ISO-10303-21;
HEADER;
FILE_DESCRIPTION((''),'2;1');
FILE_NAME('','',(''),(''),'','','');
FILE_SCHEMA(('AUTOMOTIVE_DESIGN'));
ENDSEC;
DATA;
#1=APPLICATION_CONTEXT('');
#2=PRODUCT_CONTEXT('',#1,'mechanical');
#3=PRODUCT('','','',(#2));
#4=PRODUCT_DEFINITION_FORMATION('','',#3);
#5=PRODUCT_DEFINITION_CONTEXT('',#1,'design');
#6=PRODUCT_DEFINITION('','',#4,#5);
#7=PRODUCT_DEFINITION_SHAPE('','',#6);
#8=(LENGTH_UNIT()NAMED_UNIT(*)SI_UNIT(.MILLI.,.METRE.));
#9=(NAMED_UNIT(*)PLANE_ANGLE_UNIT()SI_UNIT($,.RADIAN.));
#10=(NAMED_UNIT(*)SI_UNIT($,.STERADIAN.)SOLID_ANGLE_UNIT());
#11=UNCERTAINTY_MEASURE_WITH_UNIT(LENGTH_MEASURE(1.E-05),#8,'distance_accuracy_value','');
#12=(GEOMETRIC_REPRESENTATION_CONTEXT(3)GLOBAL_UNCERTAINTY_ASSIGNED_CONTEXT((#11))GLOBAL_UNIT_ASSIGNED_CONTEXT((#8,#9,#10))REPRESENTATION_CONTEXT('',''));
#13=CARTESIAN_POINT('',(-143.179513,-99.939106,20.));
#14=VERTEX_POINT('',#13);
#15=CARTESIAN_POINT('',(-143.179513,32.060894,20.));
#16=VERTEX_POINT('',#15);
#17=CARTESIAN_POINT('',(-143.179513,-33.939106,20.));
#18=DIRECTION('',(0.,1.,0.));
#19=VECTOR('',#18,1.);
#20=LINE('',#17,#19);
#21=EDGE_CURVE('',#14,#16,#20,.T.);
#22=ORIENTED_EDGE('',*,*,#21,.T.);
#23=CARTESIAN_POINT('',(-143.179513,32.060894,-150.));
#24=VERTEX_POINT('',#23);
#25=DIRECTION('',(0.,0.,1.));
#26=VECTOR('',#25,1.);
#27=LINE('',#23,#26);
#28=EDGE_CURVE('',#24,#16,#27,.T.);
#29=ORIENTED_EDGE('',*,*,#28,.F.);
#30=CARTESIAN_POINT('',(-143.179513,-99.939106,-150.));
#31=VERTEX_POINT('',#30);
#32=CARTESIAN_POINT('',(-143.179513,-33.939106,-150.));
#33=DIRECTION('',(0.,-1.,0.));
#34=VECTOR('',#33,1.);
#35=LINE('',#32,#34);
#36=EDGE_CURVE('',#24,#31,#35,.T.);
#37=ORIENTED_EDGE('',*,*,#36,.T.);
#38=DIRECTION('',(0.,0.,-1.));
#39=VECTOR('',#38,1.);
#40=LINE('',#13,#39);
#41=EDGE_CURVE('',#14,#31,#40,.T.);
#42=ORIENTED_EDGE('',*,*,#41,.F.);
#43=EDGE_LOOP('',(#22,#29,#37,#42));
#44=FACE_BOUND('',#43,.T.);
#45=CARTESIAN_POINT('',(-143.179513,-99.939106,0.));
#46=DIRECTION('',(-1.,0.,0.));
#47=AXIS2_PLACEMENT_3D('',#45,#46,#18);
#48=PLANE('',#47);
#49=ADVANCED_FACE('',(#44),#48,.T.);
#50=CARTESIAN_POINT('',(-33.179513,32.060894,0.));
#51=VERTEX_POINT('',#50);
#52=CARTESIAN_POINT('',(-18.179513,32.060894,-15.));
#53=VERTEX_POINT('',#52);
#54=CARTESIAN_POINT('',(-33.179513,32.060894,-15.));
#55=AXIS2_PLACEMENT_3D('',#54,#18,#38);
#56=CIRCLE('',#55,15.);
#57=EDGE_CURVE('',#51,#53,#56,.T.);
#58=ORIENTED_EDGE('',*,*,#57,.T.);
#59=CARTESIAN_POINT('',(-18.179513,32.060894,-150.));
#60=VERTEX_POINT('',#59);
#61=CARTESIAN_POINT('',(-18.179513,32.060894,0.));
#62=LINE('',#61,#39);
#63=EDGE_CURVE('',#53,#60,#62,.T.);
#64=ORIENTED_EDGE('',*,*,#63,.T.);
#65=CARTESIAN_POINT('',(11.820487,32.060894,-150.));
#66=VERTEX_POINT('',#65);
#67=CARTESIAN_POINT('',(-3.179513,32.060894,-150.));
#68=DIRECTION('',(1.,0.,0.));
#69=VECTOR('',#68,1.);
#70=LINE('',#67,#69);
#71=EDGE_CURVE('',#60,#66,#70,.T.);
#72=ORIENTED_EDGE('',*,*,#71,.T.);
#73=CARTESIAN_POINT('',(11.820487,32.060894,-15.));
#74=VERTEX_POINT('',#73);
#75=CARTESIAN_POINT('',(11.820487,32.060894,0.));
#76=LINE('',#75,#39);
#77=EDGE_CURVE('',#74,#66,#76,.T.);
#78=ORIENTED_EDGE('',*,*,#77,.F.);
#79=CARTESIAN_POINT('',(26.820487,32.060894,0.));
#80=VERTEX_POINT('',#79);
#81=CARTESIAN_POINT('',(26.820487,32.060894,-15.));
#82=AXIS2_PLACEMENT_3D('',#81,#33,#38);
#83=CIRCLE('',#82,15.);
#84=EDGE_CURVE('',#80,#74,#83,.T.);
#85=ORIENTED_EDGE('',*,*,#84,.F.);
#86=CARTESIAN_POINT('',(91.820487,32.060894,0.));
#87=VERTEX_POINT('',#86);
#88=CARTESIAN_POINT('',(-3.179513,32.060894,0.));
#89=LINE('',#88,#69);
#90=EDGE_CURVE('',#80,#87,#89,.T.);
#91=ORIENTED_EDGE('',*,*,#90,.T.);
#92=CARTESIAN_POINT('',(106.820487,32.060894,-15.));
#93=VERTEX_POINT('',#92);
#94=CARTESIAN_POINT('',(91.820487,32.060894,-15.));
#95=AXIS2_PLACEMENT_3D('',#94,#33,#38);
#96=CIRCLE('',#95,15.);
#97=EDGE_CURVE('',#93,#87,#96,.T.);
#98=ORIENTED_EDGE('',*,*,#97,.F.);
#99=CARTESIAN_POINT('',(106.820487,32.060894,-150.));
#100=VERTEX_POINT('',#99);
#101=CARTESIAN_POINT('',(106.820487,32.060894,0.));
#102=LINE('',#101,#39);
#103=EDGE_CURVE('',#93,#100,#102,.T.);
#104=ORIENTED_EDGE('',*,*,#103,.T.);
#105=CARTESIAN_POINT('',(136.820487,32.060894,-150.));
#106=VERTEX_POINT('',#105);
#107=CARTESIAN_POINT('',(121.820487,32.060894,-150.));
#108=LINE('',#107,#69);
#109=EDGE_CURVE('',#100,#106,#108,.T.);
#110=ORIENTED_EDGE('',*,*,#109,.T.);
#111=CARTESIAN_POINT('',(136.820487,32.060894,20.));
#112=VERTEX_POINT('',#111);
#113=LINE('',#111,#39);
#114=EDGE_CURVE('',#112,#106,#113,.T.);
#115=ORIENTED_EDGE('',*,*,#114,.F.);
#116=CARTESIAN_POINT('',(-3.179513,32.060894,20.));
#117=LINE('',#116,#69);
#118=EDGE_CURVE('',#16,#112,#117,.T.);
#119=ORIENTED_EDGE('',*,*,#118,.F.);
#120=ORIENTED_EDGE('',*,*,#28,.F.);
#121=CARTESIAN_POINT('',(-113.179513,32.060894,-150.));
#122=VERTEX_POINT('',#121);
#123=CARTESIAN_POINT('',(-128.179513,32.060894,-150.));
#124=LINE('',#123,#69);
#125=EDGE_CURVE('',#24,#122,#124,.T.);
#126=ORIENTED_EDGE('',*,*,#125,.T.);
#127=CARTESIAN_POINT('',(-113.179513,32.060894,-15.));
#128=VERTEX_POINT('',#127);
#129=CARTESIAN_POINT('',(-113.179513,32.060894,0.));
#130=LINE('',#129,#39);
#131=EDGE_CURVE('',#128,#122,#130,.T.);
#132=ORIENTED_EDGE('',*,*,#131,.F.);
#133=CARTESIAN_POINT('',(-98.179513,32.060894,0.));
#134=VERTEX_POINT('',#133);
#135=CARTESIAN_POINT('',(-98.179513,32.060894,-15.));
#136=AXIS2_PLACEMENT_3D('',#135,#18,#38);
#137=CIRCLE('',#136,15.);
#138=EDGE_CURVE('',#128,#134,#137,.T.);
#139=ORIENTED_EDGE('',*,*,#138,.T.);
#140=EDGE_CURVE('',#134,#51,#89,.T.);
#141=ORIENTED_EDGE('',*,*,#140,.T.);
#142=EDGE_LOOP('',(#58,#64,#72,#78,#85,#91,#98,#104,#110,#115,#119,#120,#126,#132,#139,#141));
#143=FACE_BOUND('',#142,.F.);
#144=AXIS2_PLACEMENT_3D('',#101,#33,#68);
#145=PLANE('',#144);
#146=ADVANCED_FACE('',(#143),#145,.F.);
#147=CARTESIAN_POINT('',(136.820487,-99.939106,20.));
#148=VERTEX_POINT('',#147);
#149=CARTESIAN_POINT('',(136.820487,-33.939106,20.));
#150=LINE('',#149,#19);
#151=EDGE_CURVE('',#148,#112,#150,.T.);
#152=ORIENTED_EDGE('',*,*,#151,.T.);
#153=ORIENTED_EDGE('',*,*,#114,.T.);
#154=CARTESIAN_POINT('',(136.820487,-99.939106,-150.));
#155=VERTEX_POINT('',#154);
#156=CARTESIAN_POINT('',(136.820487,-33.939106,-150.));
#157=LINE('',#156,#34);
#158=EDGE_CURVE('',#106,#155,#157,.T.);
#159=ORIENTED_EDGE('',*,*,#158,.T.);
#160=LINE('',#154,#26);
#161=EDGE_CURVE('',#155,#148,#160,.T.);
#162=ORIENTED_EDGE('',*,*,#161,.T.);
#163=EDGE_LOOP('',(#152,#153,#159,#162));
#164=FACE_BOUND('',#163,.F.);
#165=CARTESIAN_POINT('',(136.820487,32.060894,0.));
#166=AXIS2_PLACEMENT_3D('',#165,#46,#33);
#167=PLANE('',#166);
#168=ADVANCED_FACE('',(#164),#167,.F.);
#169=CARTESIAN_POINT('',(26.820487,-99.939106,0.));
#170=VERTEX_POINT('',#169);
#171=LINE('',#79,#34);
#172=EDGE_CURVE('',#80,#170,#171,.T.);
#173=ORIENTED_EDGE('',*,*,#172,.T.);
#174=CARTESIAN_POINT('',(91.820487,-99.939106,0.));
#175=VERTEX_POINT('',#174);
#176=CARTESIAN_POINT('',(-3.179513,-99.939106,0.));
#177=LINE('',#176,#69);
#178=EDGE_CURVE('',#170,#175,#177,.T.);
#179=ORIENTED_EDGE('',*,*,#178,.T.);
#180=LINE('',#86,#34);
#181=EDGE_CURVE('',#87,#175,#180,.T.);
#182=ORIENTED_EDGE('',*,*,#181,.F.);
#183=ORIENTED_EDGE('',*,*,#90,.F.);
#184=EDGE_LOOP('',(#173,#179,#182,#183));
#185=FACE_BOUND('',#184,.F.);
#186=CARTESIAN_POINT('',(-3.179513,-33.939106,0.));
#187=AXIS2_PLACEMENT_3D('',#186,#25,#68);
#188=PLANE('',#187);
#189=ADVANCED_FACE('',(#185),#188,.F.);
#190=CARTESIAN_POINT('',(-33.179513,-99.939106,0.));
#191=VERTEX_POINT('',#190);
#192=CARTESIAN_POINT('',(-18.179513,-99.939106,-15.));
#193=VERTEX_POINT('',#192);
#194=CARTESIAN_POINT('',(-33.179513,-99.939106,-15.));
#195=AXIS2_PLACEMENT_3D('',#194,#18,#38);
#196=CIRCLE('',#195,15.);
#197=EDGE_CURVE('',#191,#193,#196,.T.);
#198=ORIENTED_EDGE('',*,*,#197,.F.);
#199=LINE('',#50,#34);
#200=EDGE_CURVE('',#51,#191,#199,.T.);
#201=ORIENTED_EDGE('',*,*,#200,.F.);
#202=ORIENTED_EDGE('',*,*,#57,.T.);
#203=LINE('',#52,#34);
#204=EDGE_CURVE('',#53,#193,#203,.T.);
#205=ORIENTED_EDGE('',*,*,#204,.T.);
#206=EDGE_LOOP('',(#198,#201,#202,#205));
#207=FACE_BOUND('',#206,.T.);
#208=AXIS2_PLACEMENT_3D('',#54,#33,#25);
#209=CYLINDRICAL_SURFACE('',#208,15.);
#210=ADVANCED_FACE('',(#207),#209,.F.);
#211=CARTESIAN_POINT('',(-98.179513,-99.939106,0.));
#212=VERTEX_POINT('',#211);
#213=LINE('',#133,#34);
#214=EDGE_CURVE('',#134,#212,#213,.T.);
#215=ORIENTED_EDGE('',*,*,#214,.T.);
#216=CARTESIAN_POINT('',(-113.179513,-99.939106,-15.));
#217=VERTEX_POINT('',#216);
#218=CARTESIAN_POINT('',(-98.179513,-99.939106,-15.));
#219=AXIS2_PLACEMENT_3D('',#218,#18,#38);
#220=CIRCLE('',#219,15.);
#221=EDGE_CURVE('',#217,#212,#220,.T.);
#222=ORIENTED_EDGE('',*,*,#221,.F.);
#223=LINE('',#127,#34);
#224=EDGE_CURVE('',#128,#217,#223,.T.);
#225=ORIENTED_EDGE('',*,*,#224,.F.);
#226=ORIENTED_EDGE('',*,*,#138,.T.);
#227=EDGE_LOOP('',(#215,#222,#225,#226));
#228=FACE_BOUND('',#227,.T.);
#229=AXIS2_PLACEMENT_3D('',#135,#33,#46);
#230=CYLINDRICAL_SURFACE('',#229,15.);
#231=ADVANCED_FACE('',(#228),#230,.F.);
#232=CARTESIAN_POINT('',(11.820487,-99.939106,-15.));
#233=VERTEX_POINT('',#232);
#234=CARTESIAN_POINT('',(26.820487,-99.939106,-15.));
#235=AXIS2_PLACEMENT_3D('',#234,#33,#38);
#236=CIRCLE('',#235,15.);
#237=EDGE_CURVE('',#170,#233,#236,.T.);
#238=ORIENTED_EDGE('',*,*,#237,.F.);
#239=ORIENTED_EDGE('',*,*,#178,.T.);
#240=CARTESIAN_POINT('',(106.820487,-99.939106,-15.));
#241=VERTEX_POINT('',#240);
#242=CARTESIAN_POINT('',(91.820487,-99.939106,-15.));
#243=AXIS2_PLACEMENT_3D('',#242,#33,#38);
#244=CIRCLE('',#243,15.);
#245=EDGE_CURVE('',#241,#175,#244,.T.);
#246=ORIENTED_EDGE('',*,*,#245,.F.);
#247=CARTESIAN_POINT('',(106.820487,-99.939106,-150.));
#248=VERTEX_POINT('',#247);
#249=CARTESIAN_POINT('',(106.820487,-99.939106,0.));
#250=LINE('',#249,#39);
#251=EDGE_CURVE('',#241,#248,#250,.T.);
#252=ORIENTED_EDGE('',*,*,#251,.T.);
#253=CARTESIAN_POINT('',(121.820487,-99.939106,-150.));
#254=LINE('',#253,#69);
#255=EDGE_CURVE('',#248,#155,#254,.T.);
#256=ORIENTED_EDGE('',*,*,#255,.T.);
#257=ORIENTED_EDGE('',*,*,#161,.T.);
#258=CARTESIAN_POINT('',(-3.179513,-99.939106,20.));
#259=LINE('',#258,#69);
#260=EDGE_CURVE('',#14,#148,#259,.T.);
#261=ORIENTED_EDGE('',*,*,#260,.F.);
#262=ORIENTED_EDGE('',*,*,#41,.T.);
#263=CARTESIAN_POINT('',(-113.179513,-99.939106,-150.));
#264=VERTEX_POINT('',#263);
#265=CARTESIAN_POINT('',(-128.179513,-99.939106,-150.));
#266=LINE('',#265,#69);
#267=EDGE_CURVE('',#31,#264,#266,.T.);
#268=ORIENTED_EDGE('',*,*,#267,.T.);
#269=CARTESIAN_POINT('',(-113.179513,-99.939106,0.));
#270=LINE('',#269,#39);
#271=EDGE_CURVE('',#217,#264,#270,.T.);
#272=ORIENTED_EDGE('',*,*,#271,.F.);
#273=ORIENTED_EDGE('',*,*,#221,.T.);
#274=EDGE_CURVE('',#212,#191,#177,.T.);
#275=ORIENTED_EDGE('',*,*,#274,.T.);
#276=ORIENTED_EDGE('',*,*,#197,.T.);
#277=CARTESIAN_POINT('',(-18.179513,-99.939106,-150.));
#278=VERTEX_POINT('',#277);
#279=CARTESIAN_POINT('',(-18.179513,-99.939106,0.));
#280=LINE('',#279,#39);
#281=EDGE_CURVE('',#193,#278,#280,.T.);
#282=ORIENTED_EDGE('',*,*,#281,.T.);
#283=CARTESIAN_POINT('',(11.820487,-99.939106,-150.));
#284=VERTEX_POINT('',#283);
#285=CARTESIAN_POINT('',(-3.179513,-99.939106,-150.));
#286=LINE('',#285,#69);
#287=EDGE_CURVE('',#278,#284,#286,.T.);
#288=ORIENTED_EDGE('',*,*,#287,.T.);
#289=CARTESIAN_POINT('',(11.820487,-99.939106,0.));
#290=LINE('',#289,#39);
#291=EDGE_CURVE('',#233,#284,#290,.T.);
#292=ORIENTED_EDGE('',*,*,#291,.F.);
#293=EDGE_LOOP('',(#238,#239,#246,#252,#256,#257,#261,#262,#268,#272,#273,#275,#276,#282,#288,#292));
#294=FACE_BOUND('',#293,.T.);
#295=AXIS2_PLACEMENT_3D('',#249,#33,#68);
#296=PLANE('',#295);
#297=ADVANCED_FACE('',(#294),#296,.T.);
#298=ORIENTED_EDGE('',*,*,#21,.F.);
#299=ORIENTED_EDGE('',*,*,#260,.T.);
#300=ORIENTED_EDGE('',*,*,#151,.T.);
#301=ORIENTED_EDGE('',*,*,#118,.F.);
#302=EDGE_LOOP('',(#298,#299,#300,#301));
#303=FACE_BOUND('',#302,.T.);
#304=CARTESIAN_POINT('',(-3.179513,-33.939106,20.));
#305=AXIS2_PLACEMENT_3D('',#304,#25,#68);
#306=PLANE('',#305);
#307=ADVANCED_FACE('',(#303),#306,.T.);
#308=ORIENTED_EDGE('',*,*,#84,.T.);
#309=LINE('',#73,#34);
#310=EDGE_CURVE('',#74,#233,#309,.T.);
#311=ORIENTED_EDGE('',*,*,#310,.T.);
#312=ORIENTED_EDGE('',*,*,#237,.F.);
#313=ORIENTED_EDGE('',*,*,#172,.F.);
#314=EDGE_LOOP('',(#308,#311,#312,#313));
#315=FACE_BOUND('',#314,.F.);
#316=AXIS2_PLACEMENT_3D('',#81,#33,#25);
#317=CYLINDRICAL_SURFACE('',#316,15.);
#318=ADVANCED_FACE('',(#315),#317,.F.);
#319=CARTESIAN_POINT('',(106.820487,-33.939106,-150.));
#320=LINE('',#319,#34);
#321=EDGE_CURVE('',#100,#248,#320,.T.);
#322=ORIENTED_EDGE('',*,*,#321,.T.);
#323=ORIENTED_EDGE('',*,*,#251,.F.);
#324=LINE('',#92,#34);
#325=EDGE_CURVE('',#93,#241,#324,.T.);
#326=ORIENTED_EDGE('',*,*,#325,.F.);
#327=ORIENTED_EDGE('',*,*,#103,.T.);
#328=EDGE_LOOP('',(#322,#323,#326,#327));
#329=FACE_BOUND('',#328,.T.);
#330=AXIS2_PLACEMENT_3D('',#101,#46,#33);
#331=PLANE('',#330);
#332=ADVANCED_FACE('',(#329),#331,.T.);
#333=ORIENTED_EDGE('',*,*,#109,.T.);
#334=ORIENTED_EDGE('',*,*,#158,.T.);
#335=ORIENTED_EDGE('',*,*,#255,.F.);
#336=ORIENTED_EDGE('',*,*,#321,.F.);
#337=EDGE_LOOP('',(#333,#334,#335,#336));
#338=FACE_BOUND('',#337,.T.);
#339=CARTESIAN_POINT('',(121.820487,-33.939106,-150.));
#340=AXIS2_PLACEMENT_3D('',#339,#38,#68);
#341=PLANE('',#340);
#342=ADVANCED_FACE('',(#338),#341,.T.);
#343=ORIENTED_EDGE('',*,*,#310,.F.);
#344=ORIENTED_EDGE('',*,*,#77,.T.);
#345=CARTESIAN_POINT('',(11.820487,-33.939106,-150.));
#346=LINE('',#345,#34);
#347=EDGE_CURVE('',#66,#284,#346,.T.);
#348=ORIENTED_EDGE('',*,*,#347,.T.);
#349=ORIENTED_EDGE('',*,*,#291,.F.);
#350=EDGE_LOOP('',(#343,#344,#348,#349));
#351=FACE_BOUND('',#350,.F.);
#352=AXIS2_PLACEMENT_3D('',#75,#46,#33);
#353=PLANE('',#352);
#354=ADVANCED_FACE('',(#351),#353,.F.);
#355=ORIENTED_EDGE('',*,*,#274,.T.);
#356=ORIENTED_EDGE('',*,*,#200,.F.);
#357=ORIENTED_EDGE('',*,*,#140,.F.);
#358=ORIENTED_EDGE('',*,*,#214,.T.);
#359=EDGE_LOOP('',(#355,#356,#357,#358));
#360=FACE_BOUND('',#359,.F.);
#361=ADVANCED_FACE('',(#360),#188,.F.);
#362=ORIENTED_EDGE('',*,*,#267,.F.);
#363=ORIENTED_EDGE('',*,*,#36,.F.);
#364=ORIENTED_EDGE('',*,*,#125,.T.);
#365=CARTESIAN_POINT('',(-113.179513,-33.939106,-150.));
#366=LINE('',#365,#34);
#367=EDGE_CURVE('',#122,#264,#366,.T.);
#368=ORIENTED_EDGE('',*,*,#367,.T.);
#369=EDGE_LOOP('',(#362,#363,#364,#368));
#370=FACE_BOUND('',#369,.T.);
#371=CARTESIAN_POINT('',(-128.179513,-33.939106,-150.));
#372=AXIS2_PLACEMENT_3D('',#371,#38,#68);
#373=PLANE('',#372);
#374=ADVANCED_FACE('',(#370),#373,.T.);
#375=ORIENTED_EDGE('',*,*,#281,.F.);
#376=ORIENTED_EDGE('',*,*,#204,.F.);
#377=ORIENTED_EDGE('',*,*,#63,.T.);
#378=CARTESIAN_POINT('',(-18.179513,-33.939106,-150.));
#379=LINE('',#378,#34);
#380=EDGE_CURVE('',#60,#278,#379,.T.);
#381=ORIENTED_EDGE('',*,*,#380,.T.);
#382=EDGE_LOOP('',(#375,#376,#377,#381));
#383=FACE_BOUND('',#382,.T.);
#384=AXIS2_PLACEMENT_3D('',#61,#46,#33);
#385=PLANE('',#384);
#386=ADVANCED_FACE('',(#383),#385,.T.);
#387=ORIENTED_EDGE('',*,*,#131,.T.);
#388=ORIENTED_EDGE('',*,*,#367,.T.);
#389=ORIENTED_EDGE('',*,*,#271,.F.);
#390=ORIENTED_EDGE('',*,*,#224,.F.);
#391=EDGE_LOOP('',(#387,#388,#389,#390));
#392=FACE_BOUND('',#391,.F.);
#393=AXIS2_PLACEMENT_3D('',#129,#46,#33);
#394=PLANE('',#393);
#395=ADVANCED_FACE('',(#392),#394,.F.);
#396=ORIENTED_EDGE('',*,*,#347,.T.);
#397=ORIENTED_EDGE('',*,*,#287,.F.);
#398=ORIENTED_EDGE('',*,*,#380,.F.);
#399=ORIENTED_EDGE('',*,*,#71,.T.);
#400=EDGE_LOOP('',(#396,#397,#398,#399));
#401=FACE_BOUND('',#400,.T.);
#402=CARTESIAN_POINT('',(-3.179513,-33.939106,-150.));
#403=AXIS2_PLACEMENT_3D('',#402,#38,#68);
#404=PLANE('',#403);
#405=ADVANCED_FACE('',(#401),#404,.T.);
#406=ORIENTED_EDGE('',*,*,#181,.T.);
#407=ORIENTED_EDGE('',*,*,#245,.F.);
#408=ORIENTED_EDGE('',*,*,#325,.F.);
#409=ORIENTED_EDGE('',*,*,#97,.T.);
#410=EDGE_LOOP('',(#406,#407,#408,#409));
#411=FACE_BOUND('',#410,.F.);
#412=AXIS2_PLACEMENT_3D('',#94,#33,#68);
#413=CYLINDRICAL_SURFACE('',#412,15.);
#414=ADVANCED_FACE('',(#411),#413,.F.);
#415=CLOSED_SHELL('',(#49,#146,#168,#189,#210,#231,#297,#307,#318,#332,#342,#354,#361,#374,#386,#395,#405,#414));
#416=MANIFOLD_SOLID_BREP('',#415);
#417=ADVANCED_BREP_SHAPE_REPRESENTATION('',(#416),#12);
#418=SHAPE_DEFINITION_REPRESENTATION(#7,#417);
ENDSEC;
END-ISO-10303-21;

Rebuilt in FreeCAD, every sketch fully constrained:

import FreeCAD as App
import Part
import Sketcher

V = App.Vector


def edges_at(feature, points):
    """Names of the edges that pass closest to the given points."""
    edges = feature.Shape.Edges
    near = lambda p: min(range(len(edges)), key=lambda i: edges[i].distToShape(Part.Vertex(*p))[0])
    return sorted({f"Edge{near(p) + 1}" for p in points})

doc = App.newDocument("Part")
params = doc.addObject("Spreadsheet::Sheet", "Params")
for row, (alias, value) in enumerate([
    ("sketch1_width", "280 mm"),
    ("sketch1_height", "132 mm"),
    ("pad1_length", "20 mm"),
    ("sketch2_width", "30 mm"),
    ("sketch2_height", "132 mm"),
    ("pad2_length", "150 mm"),
    ("fillet_radius", "15 mm"),
    ("fillet2_radius", "15 mm"),
], start=1):
    params.set(f"A{row}", alias)
    params.set(f"B{row}", "=" + value)
    params.setAlias(f"B{row}", alias)

body = doc.addObject("PartDesign::Body", "Body")

sketch1 = doc.addObject("Sketcher::SketchObject", "Sketch")
body.addObject(sketch1)
sketch1.AttachmentSupport = (doc.XY_Plane, [""])
sketch1.MapMode = "FlatFace"
sketch1.addGeometry(Part.LineSegment(V(-143, 32, 0), V(-143, -100, 0)), False)
sketch1.addGeometry(Part.LineSegment(V(-143, -100, 0), V(137, -100, 0)), False)
sketch1.addGeometry(Part.LineSegment(V(137, -100, 0), V(137, 32, 0)), False)
sketch1.addGeometry(Part.LineSegment(V(137, 32, 0), V(-143, 32, 0)), False)
sketch1.addConstraint(Sketcher.Constraint("Coincident", 0, 2, 1, 1))
sketch1.addConstraint(Sketcher.Constraint("Coincident", 1, 2, 2, 1))
sketch1.addConstraint(Sketcher.Constraint("Coincident", 2, 2, 3, 1))
sketch1.addConstraint(Sketcher.Constraint("Coincident", 3, 2, 0, 1))
sketch1.addConstraint(Sketcher.Constraint("Vertical", 0))
sketch1.addConstraint(Sketcher.Constraint("Horizontal", 1))
sketch1.addConstraint(Sketcher.Constraint("Vertical", 2))
sketch1.addConstraint(Sketcher.Constraint("Horizontal", 3))
sketch1.addConstraint(Sketcher.Constraint("DistanceX", 1, 1, 1, 2, 280.0))
sketch1.addConstraint(Sketcher.Constraint("DistanceY", 0, 2, 0, 1, 132.0))
sketch1.addConstraint(Sketcher.Constraint("DistanceX", 0, 2, -1, 1, 143.179513))
sketch1.addConstraint(Sketcher.Constraint("DistanceY", 0, 2, -1, 1, 99.939106))
sketch1.setExpression("Constraints[8]", "Params.sketch1_width")
sketch1.setExpression("Constraints[9]", "Params.sketch1_height")
pad1 = doc.addObject("PartDesign::Pad", "Pad")
body.addObject(pad1)
pad1.Profile = sketch1
pad1.setExpression("Length", "Params.pad1_length")

sketch2 = doc.addObject("Sketcher::SketchObject", "Sketch001")
body.addObject(sketch2)
sketch2.AttachmentSupport = (doc.XY_Plane, [""])
sketch2.MapMode = "FlatFace"
sketch2.addGeometry(Part.LineSegment(V(107, -100, 0), V(107, 32, 0)), False)
sketch2.addGeometry(Part.LineSegment(V(107, 32, 0), V(137, 32, 0)), False)
sketch2.addGeometry(Part.LineSegment(V(137, 32, 0), V(137, -100, 0)), False)
sketch2.addGeometry(Part.LineSegment(V(137, -100, 0), V(107, -100, 0)), False)
sketch2.addGeometry(Part.LineSegment(V(-18, -100, 0), V(-18, 32, 0)), False)
sketch2.addGeometry(Part.LineSegment(V(-18, 32, 0), V(12, 32, 0)), False)
sketch2.addGeometry(Part.LineSegment(V(12, 32, 0), V(12, -100, 0)), False)
sketch2.addGeometry(Part.LineSegment(V(12, -100, 0), V(-18, -100, 0)), False)
sketch2.addGeometry(Part.LineSegment(V(-143, -100, 0), V(-143, 32, 0)), False)
sketch2.addGeometry(Part.LineSegment(V(-143, 32, 0), V(-113, 32, 0)), False)
sketch2.addGeometry(Part.LineSegment(V(-113, 32, 0), V(-113, -100, 0)), False)
sketch2.addGeometry(Part.LineSegment(V(-113, -100, 0), V(-143, -100, 0)), False)
sketch2.addConstraint(Sketcher.Constraint("Coincident", 0, 2, 1, 1))
sketch2.addConstraint(Sketcher.Constraint("Coincident", 1, 2, 2, 1))
sketch2.addConstraint(Sketcher.Constraint("Coincident", 2, 2, 3, 1))
sketch2.addConstraint(Sketcher.Constraint("Coincident", 3, 2, 0, 1))
sketch2.addConstraint(Sketcher.Constraint("Coincident", 4, 2, 5, 1))
sketch2.addConstraint(Sketcher.Constraint("Coincident", 5, 2, 6, 1))
sketch2.addConstraint(Sketcher.Constraint("Coincident", 6, 2, 7, 1))
sketch2.addConstraint(Sketcher.Constraint("Coincident", 7, 2, 4, 1))
sketch2.addConstraint(Sketcher.Constraint("Coincident", 8, 2, 9, 1))
sketch2.addConstraint(Sketcher.Constraint("Coincident", 9, 2, 10, 1))
sketch2.addConstraint(Sketcher.Constraint("Coincident", 10, 2, 11, 1))
sketch2.addConstraint(Sketcher.Constraint("Coincident", 11, 2, 8, 1))
sketch2.addConstraint(Sketcher.Constraint("Vertical", 0))
sketch2.addConstraint(Sketcher.Constraint("Horizontal", 1))
sketch2.addConstraint(Sketcher.Constraint("Vertical", 2))
sketch2.addConstraint(Sketcher.Constraint("Horizontal", 3))
sketch2.addConstraint(Sketcher.Constraint("Vertical", 4))
sketch2.addConstraint(Sketcher.Constraint("Horizontal", 5))
sketch2.addConstraint(Sketcher.Constraint("Vertical", 6))
sketch2.addConstraint(Sketcher.Constraint("Horizontal", 7))
sketch2.addConstraint(Sketcher.Constraint("Vertical", 8))
sketch2.addConstraint(Sketcher.Constraint("Horizontal", 9))
sketch2.addConstraint(Sketcher.Constraint("Vertical", 10))
sketch2.addConstraint(Sketcher.Constraint("Horizontal", 11))
sketch2.addConstraint(Sketcher.Constraint("Horizontal", 1, 2, 4, 2))
sketch2.addConstraint(Sketcher.Constraint("Horizontal", 3, 2, 6, 2))
sketch2.addConstraint(Sketcher.Constraint("Horizontal", 5, 2, 8, 2))
sketch2.addConstraint(Sketcher.Constraint("Horizontal", 7, 2, 10, 2))
sketch2.addConstraint(Sketcher.Constraint("Equal", 3, 5))
sketch2.addConstraint(Sketcher.Constraint("Equal", 7, 9))
sketch2.addConstraint(Sketcher.Constraint("DistanceX", 1, 1, 1, 2, 30.0))
sketch2.addConstraint(Sketcher.Constraint("DistanceY", 0, 1, 0, 2, 132.0))
sketch2.addConstraint(Sketcher.Constraint("DistanceX", 4, 2, 0, 2, 125.0))
sketch2.addConstraint(Sketcher.Constraint("DistanceX", 8, 2, 4, 2, 125.0))
sketch2.addConstraint(Sketcher.Constraint("DistanceX", -1, 1, 0, 2, 106.820487))
sketch2.addConstraint(Sketcher.Constraint("DistanceY", -1, 1, 0, 2, 32.060894))
sketch2.setExpression("Constraints[30]", "Params.sketch2_width")
sketch2.setExpression("Constraints[31]", "Params.sketch2_height")
pad2 = doc.addObject("PartDesign::Pad", "Pad001")
body.addObject(pad2)
pad2.Profile = sketch2
pad2.setExpression("Length", "Params.pad2_length")
pad2.Reversed = True
doc.recompute()

fillet = doc.addObject("PartDesign::Fillet", "Fillet")
body.addObject(fillet)
fillet.Base = (pad2, edges_at(pad2, [(106.82, -33.939, 0), (-18.18, -33.939, 0)]))
fillet.setExpression("Radius", "Params.fillet_radius")
doc.recompute()

fillet2 = doc.addObject("PartDesign::Fillet", "Fillet001")
body.addObject(fillet2)
fillet2.Base = (fillet, edges_at(fillet, [(-113.18, -33.939, 0), (11.82, -33.939, 0)]))
fillet2.setExpression("Radius", "Params.fillet2_radius")

doc.recompute()
